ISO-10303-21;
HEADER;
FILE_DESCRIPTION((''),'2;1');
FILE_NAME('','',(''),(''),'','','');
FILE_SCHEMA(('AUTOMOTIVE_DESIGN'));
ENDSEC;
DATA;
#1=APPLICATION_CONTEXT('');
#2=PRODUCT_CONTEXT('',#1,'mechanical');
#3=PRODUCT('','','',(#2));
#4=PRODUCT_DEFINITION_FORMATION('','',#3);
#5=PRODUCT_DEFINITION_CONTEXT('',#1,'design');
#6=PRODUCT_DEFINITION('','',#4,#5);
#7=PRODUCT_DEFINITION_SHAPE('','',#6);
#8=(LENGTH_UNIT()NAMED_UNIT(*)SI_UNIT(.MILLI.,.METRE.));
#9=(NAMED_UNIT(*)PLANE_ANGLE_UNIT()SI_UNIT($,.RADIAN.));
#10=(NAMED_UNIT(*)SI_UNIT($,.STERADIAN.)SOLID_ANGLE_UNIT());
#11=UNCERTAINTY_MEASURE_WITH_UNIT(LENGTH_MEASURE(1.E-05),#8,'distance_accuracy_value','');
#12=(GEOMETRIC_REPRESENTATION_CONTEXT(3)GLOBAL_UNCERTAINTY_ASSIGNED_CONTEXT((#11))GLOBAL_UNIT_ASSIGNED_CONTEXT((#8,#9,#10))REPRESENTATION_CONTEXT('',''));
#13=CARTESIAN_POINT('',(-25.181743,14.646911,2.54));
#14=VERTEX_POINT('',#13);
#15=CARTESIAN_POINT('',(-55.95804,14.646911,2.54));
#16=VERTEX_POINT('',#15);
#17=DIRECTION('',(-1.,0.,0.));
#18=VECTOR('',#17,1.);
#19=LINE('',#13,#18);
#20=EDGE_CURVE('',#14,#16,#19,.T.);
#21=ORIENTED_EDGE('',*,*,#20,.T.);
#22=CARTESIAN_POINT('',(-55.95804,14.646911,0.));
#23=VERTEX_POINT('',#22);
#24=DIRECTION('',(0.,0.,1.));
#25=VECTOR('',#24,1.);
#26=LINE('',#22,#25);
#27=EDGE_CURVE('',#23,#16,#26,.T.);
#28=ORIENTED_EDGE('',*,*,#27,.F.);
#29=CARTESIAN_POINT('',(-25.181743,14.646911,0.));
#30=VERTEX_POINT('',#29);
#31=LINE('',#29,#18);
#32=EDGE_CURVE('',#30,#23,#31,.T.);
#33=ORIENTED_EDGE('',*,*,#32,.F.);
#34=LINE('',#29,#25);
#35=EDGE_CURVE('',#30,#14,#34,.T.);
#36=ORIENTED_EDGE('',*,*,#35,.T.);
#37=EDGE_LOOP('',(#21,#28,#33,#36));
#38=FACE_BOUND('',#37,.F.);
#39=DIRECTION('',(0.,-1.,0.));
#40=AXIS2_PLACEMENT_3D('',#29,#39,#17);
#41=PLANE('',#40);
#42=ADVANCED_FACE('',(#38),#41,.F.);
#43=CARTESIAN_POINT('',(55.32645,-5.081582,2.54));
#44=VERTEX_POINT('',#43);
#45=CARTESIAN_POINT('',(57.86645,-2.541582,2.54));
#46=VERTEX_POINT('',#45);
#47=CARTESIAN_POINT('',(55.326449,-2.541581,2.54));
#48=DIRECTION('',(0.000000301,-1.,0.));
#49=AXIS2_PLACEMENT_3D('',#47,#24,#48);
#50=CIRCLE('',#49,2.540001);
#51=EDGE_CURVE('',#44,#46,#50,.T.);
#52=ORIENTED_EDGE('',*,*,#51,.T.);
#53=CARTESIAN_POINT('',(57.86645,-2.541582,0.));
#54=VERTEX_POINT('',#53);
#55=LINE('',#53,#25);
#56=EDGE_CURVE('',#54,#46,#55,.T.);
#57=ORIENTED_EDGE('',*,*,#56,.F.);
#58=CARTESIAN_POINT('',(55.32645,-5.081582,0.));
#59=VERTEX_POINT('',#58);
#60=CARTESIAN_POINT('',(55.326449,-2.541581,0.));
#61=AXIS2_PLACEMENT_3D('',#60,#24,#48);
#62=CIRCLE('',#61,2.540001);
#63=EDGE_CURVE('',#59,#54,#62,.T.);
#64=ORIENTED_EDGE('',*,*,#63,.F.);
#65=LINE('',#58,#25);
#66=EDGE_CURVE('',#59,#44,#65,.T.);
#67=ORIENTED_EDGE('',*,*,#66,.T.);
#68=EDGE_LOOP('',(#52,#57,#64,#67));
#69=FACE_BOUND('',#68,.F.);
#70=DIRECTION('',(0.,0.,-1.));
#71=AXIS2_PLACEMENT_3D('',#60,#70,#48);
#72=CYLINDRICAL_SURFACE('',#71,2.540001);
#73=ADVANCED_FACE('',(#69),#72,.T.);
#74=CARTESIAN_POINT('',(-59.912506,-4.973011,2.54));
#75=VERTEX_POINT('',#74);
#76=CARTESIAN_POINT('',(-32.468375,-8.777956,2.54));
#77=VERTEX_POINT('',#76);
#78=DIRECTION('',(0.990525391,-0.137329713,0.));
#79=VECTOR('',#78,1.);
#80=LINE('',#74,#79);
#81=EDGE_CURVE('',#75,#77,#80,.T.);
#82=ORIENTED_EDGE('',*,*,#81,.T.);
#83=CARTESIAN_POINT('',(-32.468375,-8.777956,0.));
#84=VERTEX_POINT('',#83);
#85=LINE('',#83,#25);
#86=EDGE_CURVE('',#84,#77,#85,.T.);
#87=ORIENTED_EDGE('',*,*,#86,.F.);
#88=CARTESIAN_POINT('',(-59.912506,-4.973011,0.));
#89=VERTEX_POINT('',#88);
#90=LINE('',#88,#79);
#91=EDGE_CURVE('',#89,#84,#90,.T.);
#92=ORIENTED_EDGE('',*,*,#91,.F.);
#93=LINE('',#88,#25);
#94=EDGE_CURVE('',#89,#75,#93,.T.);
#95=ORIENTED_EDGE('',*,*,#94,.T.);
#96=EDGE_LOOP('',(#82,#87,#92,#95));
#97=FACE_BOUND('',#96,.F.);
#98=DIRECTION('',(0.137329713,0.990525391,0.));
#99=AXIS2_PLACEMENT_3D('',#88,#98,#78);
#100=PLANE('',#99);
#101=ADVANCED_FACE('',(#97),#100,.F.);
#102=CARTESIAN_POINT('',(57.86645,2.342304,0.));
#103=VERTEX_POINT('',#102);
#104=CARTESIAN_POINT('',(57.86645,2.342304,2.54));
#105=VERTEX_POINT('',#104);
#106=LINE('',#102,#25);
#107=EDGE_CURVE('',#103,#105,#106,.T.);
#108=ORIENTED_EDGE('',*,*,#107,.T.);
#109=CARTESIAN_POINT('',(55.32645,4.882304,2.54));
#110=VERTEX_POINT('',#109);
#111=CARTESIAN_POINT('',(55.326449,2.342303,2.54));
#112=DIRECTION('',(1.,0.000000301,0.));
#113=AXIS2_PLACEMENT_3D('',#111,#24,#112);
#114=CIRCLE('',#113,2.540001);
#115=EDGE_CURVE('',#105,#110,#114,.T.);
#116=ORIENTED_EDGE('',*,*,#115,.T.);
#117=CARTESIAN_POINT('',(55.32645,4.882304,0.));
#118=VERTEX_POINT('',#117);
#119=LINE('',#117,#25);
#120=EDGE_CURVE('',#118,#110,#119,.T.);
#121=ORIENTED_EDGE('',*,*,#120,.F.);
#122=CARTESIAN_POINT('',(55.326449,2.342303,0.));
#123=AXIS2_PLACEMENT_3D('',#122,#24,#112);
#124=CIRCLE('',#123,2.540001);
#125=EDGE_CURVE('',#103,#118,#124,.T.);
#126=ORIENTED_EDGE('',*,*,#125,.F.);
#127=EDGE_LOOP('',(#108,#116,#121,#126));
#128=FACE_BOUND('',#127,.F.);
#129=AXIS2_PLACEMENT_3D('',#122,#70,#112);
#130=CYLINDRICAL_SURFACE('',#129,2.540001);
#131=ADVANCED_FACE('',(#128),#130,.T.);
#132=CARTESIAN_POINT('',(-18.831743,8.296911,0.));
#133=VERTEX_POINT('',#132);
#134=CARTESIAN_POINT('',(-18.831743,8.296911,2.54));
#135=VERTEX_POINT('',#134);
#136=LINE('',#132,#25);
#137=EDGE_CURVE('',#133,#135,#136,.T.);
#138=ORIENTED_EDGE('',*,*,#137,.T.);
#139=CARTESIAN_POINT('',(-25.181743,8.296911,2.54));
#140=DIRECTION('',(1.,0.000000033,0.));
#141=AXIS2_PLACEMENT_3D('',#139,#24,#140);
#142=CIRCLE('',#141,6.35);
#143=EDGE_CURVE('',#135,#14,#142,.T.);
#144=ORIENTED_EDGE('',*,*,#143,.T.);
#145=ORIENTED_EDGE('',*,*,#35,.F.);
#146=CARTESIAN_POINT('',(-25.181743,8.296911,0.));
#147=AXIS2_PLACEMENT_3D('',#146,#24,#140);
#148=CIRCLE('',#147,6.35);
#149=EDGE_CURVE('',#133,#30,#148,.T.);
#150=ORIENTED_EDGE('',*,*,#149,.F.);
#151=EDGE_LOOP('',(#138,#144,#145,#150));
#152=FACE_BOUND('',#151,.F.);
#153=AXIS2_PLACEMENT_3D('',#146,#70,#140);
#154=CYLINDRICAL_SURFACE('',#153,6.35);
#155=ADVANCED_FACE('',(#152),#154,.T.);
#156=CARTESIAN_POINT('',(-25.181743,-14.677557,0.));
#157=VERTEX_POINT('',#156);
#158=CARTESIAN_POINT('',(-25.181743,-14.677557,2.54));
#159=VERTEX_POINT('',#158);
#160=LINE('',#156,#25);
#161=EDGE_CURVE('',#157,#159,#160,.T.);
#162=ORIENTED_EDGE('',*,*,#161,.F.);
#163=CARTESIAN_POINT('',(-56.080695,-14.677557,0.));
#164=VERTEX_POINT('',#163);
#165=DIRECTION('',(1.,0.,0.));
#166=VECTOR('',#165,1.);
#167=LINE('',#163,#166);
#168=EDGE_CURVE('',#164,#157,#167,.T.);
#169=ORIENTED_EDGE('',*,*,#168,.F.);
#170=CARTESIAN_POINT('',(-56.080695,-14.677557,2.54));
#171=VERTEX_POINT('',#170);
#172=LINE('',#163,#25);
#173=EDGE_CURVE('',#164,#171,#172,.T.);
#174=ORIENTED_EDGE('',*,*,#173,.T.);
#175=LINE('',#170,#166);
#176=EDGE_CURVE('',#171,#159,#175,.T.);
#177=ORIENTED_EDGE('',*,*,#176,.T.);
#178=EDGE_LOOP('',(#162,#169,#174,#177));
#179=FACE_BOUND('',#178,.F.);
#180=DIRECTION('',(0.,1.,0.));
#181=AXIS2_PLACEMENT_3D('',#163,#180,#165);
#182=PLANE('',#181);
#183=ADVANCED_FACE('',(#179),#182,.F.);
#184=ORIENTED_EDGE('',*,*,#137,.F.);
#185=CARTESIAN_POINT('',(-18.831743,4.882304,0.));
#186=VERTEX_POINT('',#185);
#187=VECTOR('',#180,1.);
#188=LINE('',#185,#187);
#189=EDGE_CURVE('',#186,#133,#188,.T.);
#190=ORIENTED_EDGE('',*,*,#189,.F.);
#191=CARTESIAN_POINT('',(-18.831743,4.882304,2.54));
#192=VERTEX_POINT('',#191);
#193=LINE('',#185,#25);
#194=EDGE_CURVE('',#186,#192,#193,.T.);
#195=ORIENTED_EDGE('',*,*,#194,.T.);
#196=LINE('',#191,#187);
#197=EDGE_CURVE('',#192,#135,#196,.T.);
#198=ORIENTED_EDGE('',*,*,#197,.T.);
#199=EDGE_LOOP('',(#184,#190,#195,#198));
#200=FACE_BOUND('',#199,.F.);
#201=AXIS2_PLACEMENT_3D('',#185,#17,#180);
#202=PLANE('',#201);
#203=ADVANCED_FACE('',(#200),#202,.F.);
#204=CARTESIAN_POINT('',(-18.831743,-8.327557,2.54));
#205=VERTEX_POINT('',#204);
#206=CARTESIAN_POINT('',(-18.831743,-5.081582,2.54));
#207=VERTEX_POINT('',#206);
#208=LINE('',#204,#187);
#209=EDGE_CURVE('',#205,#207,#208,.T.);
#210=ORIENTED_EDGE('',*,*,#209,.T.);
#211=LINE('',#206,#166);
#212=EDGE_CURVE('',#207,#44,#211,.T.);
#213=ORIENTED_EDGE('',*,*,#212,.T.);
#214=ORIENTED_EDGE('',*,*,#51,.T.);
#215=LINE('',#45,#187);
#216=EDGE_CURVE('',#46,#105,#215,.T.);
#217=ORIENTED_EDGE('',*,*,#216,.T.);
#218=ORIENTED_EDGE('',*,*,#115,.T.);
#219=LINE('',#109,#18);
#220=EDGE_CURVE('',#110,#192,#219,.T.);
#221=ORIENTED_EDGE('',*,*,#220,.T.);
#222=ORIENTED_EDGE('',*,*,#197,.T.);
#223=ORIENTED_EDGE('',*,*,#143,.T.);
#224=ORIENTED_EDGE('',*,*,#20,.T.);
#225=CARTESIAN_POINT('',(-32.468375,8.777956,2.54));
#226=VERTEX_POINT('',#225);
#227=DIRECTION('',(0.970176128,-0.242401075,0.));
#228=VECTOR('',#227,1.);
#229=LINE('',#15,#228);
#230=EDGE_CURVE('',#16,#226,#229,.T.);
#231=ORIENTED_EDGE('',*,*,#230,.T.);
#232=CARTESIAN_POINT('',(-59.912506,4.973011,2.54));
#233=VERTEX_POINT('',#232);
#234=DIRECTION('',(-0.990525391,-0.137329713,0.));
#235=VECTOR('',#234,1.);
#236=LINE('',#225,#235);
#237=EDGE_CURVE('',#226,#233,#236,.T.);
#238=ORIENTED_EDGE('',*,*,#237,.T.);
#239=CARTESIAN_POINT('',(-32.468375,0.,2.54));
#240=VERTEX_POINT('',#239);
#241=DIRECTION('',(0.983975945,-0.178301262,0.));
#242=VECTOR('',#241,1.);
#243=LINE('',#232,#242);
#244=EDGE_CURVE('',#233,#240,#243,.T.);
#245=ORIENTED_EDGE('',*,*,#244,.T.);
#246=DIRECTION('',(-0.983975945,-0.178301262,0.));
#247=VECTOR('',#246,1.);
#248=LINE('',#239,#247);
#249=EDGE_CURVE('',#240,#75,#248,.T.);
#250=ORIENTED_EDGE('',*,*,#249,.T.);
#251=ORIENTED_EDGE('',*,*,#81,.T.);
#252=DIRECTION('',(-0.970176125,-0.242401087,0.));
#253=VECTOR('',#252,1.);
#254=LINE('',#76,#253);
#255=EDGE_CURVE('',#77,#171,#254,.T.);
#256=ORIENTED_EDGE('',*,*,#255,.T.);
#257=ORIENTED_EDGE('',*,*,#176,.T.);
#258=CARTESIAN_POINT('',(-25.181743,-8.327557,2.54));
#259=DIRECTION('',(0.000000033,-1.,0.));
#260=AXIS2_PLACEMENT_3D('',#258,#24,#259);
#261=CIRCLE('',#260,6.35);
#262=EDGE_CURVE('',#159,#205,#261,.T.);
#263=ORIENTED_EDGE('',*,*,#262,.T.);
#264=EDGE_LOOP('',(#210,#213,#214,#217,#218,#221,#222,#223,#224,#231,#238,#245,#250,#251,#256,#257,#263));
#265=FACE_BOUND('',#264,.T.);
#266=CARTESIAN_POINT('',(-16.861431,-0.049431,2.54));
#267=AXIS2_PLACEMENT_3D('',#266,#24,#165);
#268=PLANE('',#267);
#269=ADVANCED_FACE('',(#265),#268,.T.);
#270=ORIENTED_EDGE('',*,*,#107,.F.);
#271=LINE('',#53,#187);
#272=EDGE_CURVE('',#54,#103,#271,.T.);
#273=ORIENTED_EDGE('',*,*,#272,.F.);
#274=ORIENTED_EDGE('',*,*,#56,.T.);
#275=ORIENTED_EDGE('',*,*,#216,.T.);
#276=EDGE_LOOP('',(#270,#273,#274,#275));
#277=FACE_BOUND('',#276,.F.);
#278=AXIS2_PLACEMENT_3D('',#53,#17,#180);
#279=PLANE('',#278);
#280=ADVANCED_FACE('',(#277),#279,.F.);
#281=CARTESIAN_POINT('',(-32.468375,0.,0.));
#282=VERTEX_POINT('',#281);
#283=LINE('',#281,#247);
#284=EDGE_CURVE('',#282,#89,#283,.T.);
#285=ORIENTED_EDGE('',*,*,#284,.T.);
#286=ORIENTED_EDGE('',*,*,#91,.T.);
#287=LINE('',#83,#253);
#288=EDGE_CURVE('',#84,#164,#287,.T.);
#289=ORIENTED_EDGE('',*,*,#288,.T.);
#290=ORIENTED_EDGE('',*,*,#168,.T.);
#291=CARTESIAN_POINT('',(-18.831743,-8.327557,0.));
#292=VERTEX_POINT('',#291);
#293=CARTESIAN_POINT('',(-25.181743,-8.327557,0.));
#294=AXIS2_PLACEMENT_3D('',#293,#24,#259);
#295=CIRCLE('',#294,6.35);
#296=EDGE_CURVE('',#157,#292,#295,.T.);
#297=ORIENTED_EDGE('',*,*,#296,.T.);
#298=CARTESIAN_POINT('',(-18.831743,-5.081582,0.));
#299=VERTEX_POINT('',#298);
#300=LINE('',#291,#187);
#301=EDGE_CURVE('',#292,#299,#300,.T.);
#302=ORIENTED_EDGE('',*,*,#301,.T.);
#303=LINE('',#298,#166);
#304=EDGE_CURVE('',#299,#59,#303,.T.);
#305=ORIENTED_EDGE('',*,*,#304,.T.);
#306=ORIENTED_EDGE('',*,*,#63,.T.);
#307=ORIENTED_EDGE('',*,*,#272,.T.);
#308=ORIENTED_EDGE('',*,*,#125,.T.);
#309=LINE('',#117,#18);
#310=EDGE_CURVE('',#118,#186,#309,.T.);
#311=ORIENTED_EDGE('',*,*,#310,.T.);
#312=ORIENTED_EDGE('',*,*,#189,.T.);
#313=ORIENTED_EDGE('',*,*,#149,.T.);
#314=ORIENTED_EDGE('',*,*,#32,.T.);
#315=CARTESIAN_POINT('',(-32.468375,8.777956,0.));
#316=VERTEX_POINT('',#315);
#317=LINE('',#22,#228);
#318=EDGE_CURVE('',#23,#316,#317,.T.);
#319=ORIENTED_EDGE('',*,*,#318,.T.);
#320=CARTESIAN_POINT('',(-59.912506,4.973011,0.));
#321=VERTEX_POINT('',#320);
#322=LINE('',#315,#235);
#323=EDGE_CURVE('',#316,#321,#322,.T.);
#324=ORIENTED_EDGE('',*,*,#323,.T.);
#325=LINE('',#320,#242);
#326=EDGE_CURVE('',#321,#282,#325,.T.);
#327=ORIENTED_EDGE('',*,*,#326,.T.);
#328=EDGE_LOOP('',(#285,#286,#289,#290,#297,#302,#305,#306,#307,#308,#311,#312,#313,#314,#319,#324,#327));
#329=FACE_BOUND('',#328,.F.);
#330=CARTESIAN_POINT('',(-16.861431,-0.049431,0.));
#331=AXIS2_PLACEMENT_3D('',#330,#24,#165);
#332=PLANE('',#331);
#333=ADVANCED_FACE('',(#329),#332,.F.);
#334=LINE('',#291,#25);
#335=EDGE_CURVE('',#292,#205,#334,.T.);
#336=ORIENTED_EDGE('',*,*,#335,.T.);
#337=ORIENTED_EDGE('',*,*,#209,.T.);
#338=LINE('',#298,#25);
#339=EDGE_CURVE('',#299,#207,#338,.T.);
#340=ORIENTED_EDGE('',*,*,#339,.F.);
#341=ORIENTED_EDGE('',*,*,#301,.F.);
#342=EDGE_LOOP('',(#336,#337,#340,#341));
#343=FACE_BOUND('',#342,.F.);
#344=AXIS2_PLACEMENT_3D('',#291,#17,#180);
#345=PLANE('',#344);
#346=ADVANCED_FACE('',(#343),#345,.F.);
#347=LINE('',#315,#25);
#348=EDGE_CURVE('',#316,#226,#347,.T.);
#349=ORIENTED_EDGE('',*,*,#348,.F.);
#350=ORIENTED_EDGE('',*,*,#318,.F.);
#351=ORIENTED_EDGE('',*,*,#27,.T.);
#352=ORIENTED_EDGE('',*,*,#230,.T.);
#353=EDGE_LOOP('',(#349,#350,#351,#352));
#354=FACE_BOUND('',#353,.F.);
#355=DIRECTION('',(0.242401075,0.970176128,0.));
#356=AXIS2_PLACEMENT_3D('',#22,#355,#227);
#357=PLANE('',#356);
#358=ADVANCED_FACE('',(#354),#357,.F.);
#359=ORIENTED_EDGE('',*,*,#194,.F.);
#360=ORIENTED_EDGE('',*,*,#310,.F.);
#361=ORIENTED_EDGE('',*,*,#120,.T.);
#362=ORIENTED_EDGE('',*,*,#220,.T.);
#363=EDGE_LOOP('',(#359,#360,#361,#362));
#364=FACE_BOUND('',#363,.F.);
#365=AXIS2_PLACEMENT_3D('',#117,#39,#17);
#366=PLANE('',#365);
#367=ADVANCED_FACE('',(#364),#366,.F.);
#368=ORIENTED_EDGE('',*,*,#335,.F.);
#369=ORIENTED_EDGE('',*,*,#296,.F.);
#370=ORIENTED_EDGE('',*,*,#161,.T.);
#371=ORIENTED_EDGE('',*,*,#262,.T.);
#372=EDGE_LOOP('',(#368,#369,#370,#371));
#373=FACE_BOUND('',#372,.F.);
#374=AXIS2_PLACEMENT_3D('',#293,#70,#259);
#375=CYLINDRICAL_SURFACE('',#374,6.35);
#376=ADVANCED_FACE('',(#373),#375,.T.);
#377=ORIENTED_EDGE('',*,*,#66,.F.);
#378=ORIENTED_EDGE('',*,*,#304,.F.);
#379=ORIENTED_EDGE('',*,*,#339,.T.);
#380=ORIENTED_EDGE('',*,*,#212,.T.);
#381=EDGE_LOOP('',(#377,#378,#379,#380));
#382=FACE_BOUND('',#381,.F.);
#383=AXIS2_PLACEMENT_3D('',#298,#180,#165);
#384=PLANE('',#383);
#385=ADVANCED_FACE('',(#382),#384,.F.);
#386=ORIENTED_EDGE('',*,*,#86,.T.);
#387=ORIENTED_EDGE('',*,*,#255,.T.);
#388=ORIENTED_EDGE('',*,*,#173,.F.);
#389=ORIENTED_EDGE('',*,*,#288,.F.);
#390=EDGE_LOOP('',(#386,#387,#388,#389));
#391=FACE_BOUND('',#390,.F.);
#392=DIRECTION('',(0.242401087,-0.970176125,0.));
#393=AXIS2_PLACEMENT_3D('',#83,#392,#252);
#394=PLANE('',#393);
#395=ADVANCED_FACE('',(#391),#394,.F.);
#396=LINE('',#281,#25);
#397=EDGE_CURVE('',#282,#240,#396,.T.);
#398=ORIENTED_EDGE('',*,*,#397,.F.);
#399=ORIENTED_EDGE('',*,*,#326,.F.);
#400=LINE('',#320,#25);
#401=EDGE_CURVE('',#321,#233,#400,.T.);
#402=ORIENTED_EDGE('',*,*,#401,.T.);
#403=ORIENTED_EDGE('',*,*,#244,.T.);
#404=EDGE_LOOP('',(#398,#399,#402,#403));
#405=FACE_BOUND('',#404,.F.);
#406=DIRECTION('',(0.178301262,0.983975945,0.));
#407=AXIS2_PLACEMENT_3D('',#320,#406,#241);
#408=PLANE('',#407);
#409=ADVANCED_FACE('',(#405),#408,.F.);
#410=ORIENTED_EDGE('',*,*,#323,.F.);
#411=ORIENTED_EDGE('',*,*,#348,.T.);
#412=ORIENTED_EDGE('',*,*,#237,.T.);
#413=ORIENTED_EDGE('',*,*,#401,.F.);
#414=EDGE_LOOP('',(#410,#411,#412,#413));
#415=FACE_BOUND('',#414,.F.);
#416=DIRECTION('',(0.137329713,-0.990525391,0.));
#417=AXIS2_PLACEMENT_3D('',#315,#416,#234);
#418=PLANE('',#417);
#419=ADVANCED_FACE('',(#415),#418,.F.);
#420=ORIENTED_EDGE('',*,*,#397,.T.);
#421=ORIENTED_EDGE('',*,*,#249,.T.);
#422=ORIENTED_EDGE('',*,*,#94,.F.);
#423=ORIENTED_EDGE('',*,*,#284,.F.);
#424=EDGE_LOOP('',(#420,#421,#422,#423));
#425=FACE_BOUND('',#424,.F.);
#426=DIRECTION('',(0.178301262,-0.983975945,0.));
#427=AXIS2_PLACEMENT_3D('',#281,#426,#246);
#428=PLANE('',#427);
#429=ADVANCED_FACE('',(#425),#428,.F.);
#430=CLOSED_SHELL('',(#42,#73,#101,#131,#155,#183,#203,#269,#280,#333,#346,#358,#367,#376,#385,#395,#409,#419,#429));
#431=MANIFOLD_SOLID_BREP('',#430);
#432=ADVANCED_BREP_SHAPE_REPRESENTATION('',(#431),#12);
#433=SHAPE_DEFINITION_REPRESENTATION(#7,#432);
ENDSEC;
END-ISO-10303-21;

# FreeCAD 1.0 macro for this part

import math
import FreeCAD as App
import Part
import Sketcher
Q = App.Units.Quantity

doc = App.newDocument("Part")
params = doc.addObject("Spreadsheet::Sheet", "Params")
for row, (alias, value) in enumerate([
    ("sketch1_radius", "0.1 in"),
    ("sketch1_radius2", "0.25 in"),
    ("pad1_length", "0.1 in"),
], start=1):
    params.set(f"A{row}", alias)
    params.set(f"B{row}", "=" + value)
    params.setAlias(f"B{row}", alias)

body = doc.addObject("PartDesign::Body", "Body")

# Sketch on XY plane
sketch1 = body.newObject("Sketcher::SketchObject", "Sketch")
sketch1.AttachmentSupport = (doc.getObject("XY_Plane"), [""])
sketch1.MapMode = "FlatFace"
sketch1.addGeometry(Part.LineSegment(App.Vector(55.3, 4.9, 0), App.Vector(-18.8, 4.9, 0)), False)
sketch1.addGeometry(Part.LineSegment(App.Vector(-18.8, 4.9, 0), App.Vector(-18.8, 8.3, 0)), False)
sketch1.addGeometry(Part.ArcOfCircle(Part.Circle(App.Vector(-25.2, 8.3, 0), App.Vector(0, 0, 1), 6.4), math.radians(0), math.radians(90)), False)
sketch1.addGeometry(Part.LineSegment(App.Vector(-25.2, 14.6, 0), App.Vector(-56, 14.6, 0)), False)
sketch1.addGeometry(Part.LineSegment(App.Vector(-56, 14.6, 0), App.Vector(-32.5, 8.8, 0)), False)
sketch1.addGeometry(Part.LineSegment(App.Vector(-32.5, 8.8, 0), App.Vector(-59.9, 5, 0)), False)
sketch1.addGeometry(Part.LineSegment(App.Vector(-59.9, 5, 0), App.Vector(-32.5, 0, 0)), False)
sketch1.addGeometry(Part.LineSegment(App.Vector(-32.5, 0, 0), App.Vector(-59.9, -5, 0)), False)
sketch1.addGeometry(Part.LineSegment(App.Vector(-59.9, -5, 0), App.Vector(-32.5, -8.8, 0)), False)
sketch1.addGeometry(Part.LineSegment(App.Vector(-32.5, -8.8, 0), App.Vector(-56.1, -14.7, 0)), False)
sketch1.addGeometry(Part.LineSegment(App.Vector(-56.1, -14.7, 0), App.Vector(-25.2, -14.7, 0)), False)
sketch1.addGeometry(Part.ArcOfCircle(Part.Circle(App.Vector(-25.2, -8.3, 0), App.Vector(0, 0, 1), 6.4), math.radians(-90), math.radians(0)), False)
sketch1.addGeometry(Part.LineSegment(App.Vector(-18.8, -8.3, 0), App.Vector(-18.8, -5.1, 0)), False)
sketch1.addGeometry(Part.LineSegment(App.Vector(-18.8, -5.1, 0), App.Vector(55.3, -5.1, 0)), False)
sketch1.addGeometry(Part.ArcOfCircle(Part.Circle(App.Vector(55.3, -2.5, 0), App.Vector(0, 0, 1), 2.5), math.radians(-90), math.radians(0)), False)
sketch1.addGeometry(Part.LineSegment(App.Vector(57.9, -2.5, 0), App.Vector(57.9, 2.3, 0)), False)
sketch1.addGeometry(Part.ArcOfCircle(Part.Circle(App.Vector(55.3, 2.3, 0), App.Vector(0, 0, 1), 2.5), math.radians(0), math.radians(90)), False)
sketch1.addConstraint(Sketcher.Constraint("Coincident", 0, 2, 1, 1))
sketch1.addConstraint(Sketcher.Constraint("Tangent", 1, 2, 2, 1))
sketch1.addConstraint(Sketcher.Constraint("Tangent", 2, 2, 3, 1))
sketch1.addConstraint(Sketcher.Constraint("Coincident", 3, 2, 4, 1))
sketch1.addConstraint(Sketcher.Constraint("Coincident", 4, 2, 5, 1))
sketch1.addConstraint(Sketcher.Constraint("Coincident", 5, 2, 6, 1))
sketch1.addConstraint(Sketcher.Constraint("Coincident", 6, 2, 7, 1))
sketch1.addConstraint(Sketcher.Constraint("Coincident", 7, 2, 8, 1))
sketch1.addConstraint(Sketcher.Constraint("Coincident", 8, 2, 9, 1))
sketch1.addConstraint(Sketcher.Constraint("Coincident", 9, 2, 10, 1))
sketch1.addConstraint(Sketcher.Constraint("Tangent", 10, 2, 11, 1))
sketch1.addConstraint(Sketcher.Constraint("Tangent", 11, 2, 12, 1))
sketch1.addConstraint(Sketcher.Constraint("Coincident", 12, 2, 13, 1))
sketch1.addConstraint(Sketcher.Constraint("Tangent", 13, 2, 14, 1))
sketch1.addConstraint(Sketcher.Constraint("Tangent", 14, 2, 15, 1))
sketch1.addConstraint(Sketcher.Constraint("Tangent", 15, 2, 16, 1))
sketch1.addConstraint(Sketcher.Constraint("Tangent", 16, 2, 0, 1))
sketch1.addConstraint(Sketcher.Constraint("Horizontal", 0))
sketch1.addConstraint(Sketcher.Constraint("Vertical", 1))
sketch1.addConstraint(Sketcher.Constraint("Horizontal", 3))
sketch1.addConstraint(Sketcher.Constraint("Horizontal", 10))
sketch1.addConstraint(Sketcher.Constraint("Vertical", 12))
sketch1.addConstraint(Sketcher.Constraint("Horizontal", 13))
sketch1.addConstraint(Sketcher.Constraint("Vertical", 15))
sketch1.addConstraint(Sketcher.Constraint("Equal", 2, 11))
sketch1.addConstraint(Sketcher.Constraint("Equal", 14, 16))
sketch1.addConstraint(Sketcher.Constraint("Symmetric", 5, 2, 7, 2, -1))
sketch1.addConstraint(Sketcher.Constraint("Symmetric", 4, 2, 8, 2, -1))
sketch1.addConstraint(Sketcher.Constraint("PointOnObject", 6, 2, -1))
sketch1.addConstraint(Sketcher.Constraint("Vertical", 2, 3, 11, 3))
sketch1.addConstraint(Sketcher.Constraint("Vertical", 4, 2, 6, 2))
sketch1.addConstraint(Sketcher.Constraint("Radius", 14, Q("0.1 in")))
sketch1.addConstraint(Sketcher.Constraint("Radius", 2, Q("0.25 in")))
sketch1.addConstraint(Sketcher.Constraint("DistanceX", 10, 1, 10, 2, Q("30.898952 mm")))
sketch1.addConstraint(Sketcher.Constraint("DistanceY", 5, 2, 3, 2, Q("9.6739 mm")))
sketch1.addConstraint(Sketcher.Constraint("DistanceY", 8, 2, 11, 3, Q("0.450399 mm")))
sketch1.addConstraint(Sketcher.Constraint("Distance", 5, Q("27.706641 mm")))
sketch1.addConstraint(Sketcher.Constraint("Distance", 6, Q("27.891059 mm")))
sketch1.addConstraint(Sketcher.Constraint("Distance", 9, Q("24.338179 mm")))
sketch1.addConstraint(Sketcher.Constraint("DistanceX", 0, 2, 0, 1, Q("74.158193 mm")))
sketch1.addConstraint(Sketcher.Constraint("DistanceX", 3, 2, 3, 1, Q("30.776297 mm")))
sketch1.addConstraint(Sketcher.Constraint("DistanceY", 1, 1, 1, 2, Q("3.414607 mm")))
sketch1.addConstraint(Sketcher.Constraint("DistanceY", 12, 1, 12, 2, Q("3.245975 mm")))
sketch1.addConstraint(Sketcher.Constraint("DistanceY", 15, 1, 15, 2, Q("4.883886 mm")))
sketch1.addConstraint(Sketcher.Constraint("DistanceX", -1, 1, 14, 3, Q("55.326449 mm")))
sketch1.setExpression("Constraints[31]", "Params.sketch1_radius")
sketch1.setExpression("Constraints[32]", "Params.sketch1_radius2")
pad1 = body.newObject("PartDesign::Pad", "Pad")
pad1.Profile = sketch1
pad1.setExpression("Length", "Params.pad1_length")

doc.recompute()
